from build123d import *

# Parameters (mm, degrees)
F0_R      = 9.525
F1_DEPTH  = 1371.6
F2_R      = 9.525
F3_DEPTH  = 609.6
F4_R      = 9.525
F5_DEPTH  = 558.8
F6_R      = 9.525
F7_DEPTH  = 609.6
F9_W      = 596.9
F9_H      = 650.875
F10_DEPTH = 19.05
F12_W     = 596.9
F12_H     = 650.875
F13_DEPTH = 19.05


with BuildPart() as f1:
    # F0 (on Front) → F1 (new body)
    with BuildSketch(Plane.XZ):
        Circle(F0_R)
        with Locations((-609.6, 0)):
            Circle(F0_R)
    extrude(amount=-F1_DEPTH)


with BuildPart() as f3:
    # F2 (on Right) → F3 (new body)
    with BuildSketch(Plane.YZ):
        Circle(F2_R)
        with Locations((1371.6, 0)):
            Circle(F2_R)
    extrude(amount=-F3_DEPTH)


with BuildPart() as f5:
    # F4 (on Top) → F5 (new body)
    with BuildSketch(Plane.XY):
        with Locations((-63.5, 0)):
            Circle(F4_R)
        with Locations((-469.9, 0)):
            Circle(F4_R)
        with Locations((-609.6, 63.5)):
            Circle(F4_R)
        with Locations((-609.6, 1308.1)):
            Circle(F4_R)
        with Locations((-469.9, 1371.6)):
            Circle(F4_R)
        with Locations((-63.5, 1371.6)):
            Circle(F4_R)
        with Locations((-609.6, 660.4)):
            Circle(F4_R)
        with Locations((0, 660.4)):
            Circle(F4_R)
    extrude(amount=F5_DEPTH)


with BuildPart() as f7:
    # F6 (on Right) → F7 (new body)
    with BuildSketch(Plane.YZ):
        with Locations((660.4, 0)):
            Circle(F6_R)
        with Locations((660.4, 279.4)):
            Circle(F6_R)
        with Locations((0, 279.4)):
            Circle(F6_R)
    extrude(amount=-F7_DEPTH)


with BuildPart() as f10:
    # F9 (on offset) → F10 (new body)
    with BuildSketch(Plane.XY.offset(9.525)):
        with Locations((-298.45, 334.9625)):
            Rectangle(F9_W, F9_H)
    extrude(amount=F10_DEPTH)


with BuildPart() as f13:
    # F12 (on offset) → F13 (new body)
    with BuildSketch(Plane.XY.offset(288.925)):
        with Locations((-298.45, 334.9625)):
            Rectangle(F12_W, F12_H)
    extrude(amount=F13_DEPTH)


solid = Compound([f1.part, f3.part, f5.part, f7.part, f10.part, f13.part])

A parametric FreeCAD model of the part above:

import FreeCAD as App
import Part
import Sketcher
from FreeCAD import Vector
Q = App.Units.Quantity

doc = App.newDocument("Part")
params = doc.addObject("Spreadsheet::Sheet", "Params")
for row, (alias, value) in enumerate([
    ("sketch1_diameter", "0.75 in"),
    ("pad1_length", "54 in"),
    ("sketch2_diameter", "0.75 in"),
    ("pad2_length", "24 in"),
    ("sketch3_diameter", "0.75 in"),
    ("pad3_length", "22 in"),
    ("sketch4_diameter", "0.75 in"),
    ("pad4_length", "24 in"),
    ("sketch5_width", "23.5 in"),
    ("sketch5_height", "25.625 in"),
    ("pad5_length", "0.75 in"),
    ("sketch6_width", "23.5 in"),
    ("sketch6_height", "25.625 in"),
    ("pad6_length", "0.75 in"),
], start=1):
    params.set(f"A{row}", alias)
    params.set(f"B{row}", "=" + value)
    params.setAlias(f"B{row}", alias)

body = doc.addObject("PartDesign::Body", "Body")
body.AllowCompound = True

# Sketch on XZ plane
sketch1 = body.newObject("Sketcher::SketchObject", "Sketch")
sketch1.AttachmentSupport = (doc.getObject("XZ_Plane"), [""])
sketch1.MapMode = "FlatFace"
sketch1.addGeometry(Part.Circle(Vector(0, 0, 0), Vector(0, 0, 1), 10), False)
sketch1.addGeometry(Part.Circle(Vector(-610, 0, 0), Vector(0, 0, 1), 10), False)
sketch1.addConstraint(Sketcher.Constraint("Coincident", 0, 3, -1, 1))
sketch1.addConstraint(Sketcher.Constraint("Equal", 0, 1))
sketch1.addConstraint(Sketcher.Constraint("PointOnObject", 1, 3, -1))
sketch1.addConstraint(Sketcher.Constraint("Diameter", 0, Q("0.75 in")))
sketch1.addConstraint(Sketcher.Constraint("DistanceX", 1, 3, -1, 1, Q("24 in")))
sketch1.setExpression("Constraints[3]", "Params.sketch1_diameter")
pad1 = body.newObject("PartDesign::Pad", "Pad")
pad1.Profile = sketch1
pad1.setExpression("Length", "Params.pad1_length")
pad1.Reversed = True
body2 = doc.addObject("PartDesign::Body", "Body001")
body2.AllowCompound = True

# Sketch on YZ plane
sketch2 = body2.newObject("Sketcher::SketchObject", "Sketch001")
sketch2.AttachmentSupport = (doc.getObject("YZ_Plane001"), [""])
sketch2.MapMode = "FlatFace"
sketch2.addGeometry(Part.Circle(Vector(0, 0, 0), Vector(0, 0, 1), 10), False)
sketch2.addGeometry(Part.Circle(Vector(1372, 0, 0), Vector(0, 0, 1), 10), False)
sketch2.addConstraint(Sketcher.Constraint("Coincident", 0, 3, -1, 1))
sketch2.addConstraint(Sketcher.Constraint("Equal", 0, 1))
sketch2.addConstraint(Sketcher.Constraint("PointOnObject", 1, 3, -1))
sketch2.addConstraint(Sketcher.Constraint("Diameter", 0, Q("0.75 in")))
sketch2.addConstraint(Sketcher.Constraint("DistanceX", -1, 1, 1, 3, Q("54 in")))
sketch2.setExpression("Constraints[3]", "Params.sketch2_diameter")
pad2 = body2.newObject("PartDesign::Pad", "Pad001")
pad2.Profile = sketch2
pad2.setExpression("Length", "Params.pad2_length")
pad2.Reversed = True
body3 = doc.addObject("PartDesign::Body", "Body002")
body3.AllowCompound = True

# Sketch on XY plane
sketch3 = body3.newObject("Sketcher::SketchObject", "Sketch002")
sketch3.AttachmentSupport = (doc.getObject("XY_Plane002"), [""])
sketch3.MapMode = "FlatFace"
sketch3.addGeometry(Part.Circle(Vector(-64, 0, 0), Vector(0, 0, 1), 10), False)
sketch3.addGeometry(Part.Circle(Vector(-470, 0, 0), Vector(0, 0, 1), 10), False)
sketch3.addGeometry(Part.Circle(Vector(-610, 64, 0), Vector(0, 0, 1), 10), False)
sketch3.addGeometry(Part.Circle(Vector(-610, 1308, 0), Vector(0, 0, 1), 10), False)
sketch3.addGeometry(Part.Circle(Vector(-470, 1372, 0), Vector(0, 0, 1), 10), False)
sketch3.addGeometry(Part.Circle(Vector(-64, 1372, 0), Vector(0, 0, 1), 10), False)
sketch3.addGeometry(Part.Circle(Vector(-610, 660, 0), Vector(0, 0, 1), 10), False)
sketch3.addGeometry(Part.Circle(Vector(0, 660, 0), Vector(0, 0, 1), 10), False)
sketch3.addConstraint(Sketcher.Constraint("Equal", 0, 1))
sketch3.addConstraint(Sketcher.Constraint("Equal", 1, 2))
sketch3.addConstraint(Sketcher.Constraint("Equal", 2, 3))
sketch3.addConstraint(Sketcher.Constraint("Equal", 3, 4))
sketch3.addConstraint(Sketcher.Constraint("Equal", 4, 5))
sketch3.addConstraint(Sketcher.Constraint("Equal", 5, 6))
sketch3.addConstraint(Sketcher.Constraint("Equal", 6, 7))
sketch3.addConstraint(Sketcher.Constraint("PointOnObject", 0, 3, -1))
sketch3.addConstraint(Sketcher.Constraint("PointOnObject", 1, 3, -1))
sketch3.addConstraint(Sketcher.Constraint("PointOnObject", 7, 3, -2))
sketch3.addConstraint(Sketcher.Constraint("Horizontal", 4, 3, 5, 3))
sketch3.addConstraint(Sketcher.Constraint("Horizontal", 6, 3, 7, 3))
sketch3.addConstraint(Sketcher.Constraint("Vertical", 2, 3, 3, 3))
sketch3.addConstraint(Sketcher.Constraint("Vertical", 1, 3, 4, 3))
sketch3.addConstraint(Sketcher.Constraint("Vertical", 0, 3, 5, 3))
sketch3.addConstraint(Sketcher.Constraint("Vertical", 3, 3, 6, 3))
sketch3.addConstraint(Sketcher.Constraint("Diameter", 0, Q("0.75 in")))
sketch3.addConstraint(Sketcher.Constraint("DistanceX", 2, 3, -1, 1, Q("24 in")))
sketch3.addConstraint(Sketcher.Constraint("DistanceY", -1, 1, 4, 3, Q("54 in")))
sketch3.addConstraint(Sketcher.Constraint("DistanceY", -1, 1, 6, 3, Q("26 in")))
sketch3.addConstraint(Sketcher.Constraint("DistanceX", 1, 3, 0, 3, Q("16 in")))
sketch3.addConstraint(Sketcher.Constraint("DistanceY", 2, 3, 3, 3, Q("49 in")))
sketch3.addConstraint(Sketcher.Constraint("DistanceX", 0, 3, -1, 1, Q("2.5 in")))
sketch3.addConstraint(Sketcher.Constraint("DistanceY", -1, 1, 2, 3, Q("2.5 in")))
sketch3.setExpression("Constraints[16]", "Params.sketch3_diameter")
pad3 = body3.newObject("PartDesign::Pad", "Pad002")
pad3.Profile = sketch3
pad3.setExpression("Length", "Params.pad3_length")
body4 = doc.addObject("PartDesign::Body", "Body003")
body4.AllowCompound = True

# Sketch on YZ plane
sketch4 = body4.newObject("Sketcher::SketchObject", "Sketch003")
sketch4.AttachmentSupport = (doc.getObject("YZ_Plane003"), [""])
sketch4.MapMode = "FlatFace"
sketch4.addGeometry(Part.Circle(Vector(660, 0, 0), Vector(0, 0, 1), 10), False)
sketch4.addGeometry(Part.Circle(Vector(660, 279, 0), Vector(0, 0, 1), 10), False)
sketch4.addGeometry(Part.Circle(Vector(0, 279, 0), Vector(0, 0, 1), 10), False)
sketch4.addConstraint(Sketcher.Constraint("Equal", 0, 1))
sketch4.addConstraint(Sketcher.Constraint("Equal", 1, 2))
sketch4.addConstraint(Sketcher.Constraint("PointOnObject", 0, 3, -1))
sketch4.addConstraint(Sketcher.Constraint("PointOnObject", 2, 3, -2))
sketch4.addConstraint(Sketcher.Constraint("Horizontal", 1, 3, 2, 3))
sketch4.addConstraint(Sketcher.Constraint("Vertical", 0, 3, 1, 3))
sketch4.addConstraint(Sketcher.Constraint("Diameter", 0, Q("0.75 in")))
sketch4.addConstraint(Sketcher.Constraint("DistanceX", -1, 1, 0, 3, Q("26 in")))
sketch4.addConstraint(Sketcher.Constraint("DistanceY", -1, 1, 1, 3, Q("11 in")))
sketch4.setExpression("Constraints[6]", "Params.sketch4_diameter")
pad4 = body4.newObject("PartDesign::Pad", "Pad003")
pad4.Profile = sketch4
pad4.setExpression("Length", "Params.pad4_length")
pad4.Reversed = True
body5 = doc.addObject("PartDesign::Body", "Body004")

# Sketch on XY plane
sketch5 = body5.newObject("Sketcher::SketchObject", "Sketch004")
sketch5.AttachmentSupport = (doc.getObject("XY_Plane004"), [""])
sketch5.MapMode = "FlatFace"
sketch5.AttachmentOffset = App.Placement(Vector(0, 0, 0.375 * 25.4), App.Rotation())
sketch5.addGeometry(Part.LineSegment(Vector(-597, 660, 0), Vector(-597, 10, 0)), False)
sketch5.addGeometry(Part.LineSegment(Vector(-597, 10, 0), Vector(0, 10, 0)), False)
sketch5.addGeometry(Part.LineSegment(Vector(0, 10, 0), Vector(0, 660, 0)), False)
sketch5.addGeometry(Part.LineSegment(Vector(0, 660, 0), Vector(-597, 660, 0)), False)
sketch5.addConstraint(Sketcher.Constraint("Coincident", 0, 2, 1, 1))
sketch5.addConstraint(Sketcher.Constraint("Coincident", 1, 2, 2, 1))
sketch5.addConstraint(Sketcher.Constraint("Coincident", 2, 2, 3, 1))
sketch5.addConstraint(Sketcher.Constraint("Coincident", 3, 2, 0, 1))
sketch5.addConstraint(Sketcher.Constraint("Vertical", 0))
sketch5.addConstraint(Sketcher.Constraint("Horizontal", 1))
sketch5.addConstraint(Sketcher.Constraint("Vertical", 2))
sketch5.addConstraint(Sketcher.Constraint("Horizontal", 3))
sketch5.addConstraint(Sketcher.Constraint("PointOnObject", 1, 2, -2))
sketch5.addConstraint(Sketcher.Constraint("DistanceX", 1, 1, 1, 2, Q("23.5 in")))
sketch5.addConstraint(Sketcher.Constraint("DistanceY", -1, 1, 2, 2, Q("26 in")))
sketch5.addConstraint(Sketcher.Constraint("DistanceY", 0, 2, 0, 1, Q("25.625 in")))
sketch5.setExpression("Constraints[9]", "Params.sketch5_width")
sketch5.setExpression("Constraints[11]", "Params.sketch5_height")
pad5 = body5.newObject("PartDesign::Pad", "Pad004")
pad5.Profile = sketch5
pad5.setExpression("Length", "Params.pad5_length")
body6 = doc.addObject("PartDesign::Body", "Body005")

# Sketch on XY plane
sketch6 = body6.newObject("Sketcher::SketchObject", "Sketch005")
sketch6.AttachmentSupport = (doc.getObject("XY_Plane005"), [""])
sketch6.MapMode = "FlatFace"
sketch6.AttachmentOffset = App.Placement(Vector(0, 0, 11.375 * 25.4), App.Rotation())
sketch6.addGeometry(Part.LineSegment(Vector(-597, 660, 0), Vector(-597, 10, 0)), False)
sketch6.addGeometry(Part.LineSegment(Vector(-597, 10, 0), Vector(0, 10, 0)), False)
sketch6.addGeometry(Part.LineSegment(Vector(0, 10, 0), Vector(0, 660, 0)), False)
sketch6.addGeometry(Part.LineSegment(Vector(0, 660, 0), Vector(-597, 660, 0)), False)
sketch6.addConstraint(Sketcher.Constraint("Coincident", 0, 2, 1, 1))
sketch6.addConstraint(Sketcher.Constraint("Coincident", 1, 2, 2, 1))
sketch6.addConstraint(Sketcher.Constraint("Coincident", 2, 2, 3, 1))
sketch6.addConstraint(Sketcher.Constraint("Coincident", 3, 2, 0, 1))
sketch6.addConstraint(Sketcher.Constraint("Vertical", 0))
sketch6.addConstraint(Sketcher.Constraint("Horizontal", 1))
sketch6.addConstraint(Sketcher.Constraint("Vertical", 2))
sketch6.addConstraint(Sketcher.Constraint("Horizontal", 3))
sketch6.addConstraint(Sketcher.Constraint("PointOnObject", 1, 2, -2))
sketch6.addConstraint(Sketcher.Constraint("DistanceX", 1, 1, 1, 2, Q("23.5 in")))
sketch6.addConstraint(Sketcher.Constraint("DistanceY", -1, 1, 2, 2, Q("26 in")))
sketch6.addConstraint(Sketcher.Constraint("DistanceY", 0, 2, 0, 1, Q("25.625 in")))
sketch6.setExpression("Constraints[9]", "Params.sketch6_width")
sketch6.setExpression("Constraints[11]", "Params.sketch6_height")
pad6 = body6.newObject("PartDesign::Pad", "Pad005")
pad6.Profile = sketch6
pad6.setExpression("Length", "Params.pad6_length")

doc.recompute()
